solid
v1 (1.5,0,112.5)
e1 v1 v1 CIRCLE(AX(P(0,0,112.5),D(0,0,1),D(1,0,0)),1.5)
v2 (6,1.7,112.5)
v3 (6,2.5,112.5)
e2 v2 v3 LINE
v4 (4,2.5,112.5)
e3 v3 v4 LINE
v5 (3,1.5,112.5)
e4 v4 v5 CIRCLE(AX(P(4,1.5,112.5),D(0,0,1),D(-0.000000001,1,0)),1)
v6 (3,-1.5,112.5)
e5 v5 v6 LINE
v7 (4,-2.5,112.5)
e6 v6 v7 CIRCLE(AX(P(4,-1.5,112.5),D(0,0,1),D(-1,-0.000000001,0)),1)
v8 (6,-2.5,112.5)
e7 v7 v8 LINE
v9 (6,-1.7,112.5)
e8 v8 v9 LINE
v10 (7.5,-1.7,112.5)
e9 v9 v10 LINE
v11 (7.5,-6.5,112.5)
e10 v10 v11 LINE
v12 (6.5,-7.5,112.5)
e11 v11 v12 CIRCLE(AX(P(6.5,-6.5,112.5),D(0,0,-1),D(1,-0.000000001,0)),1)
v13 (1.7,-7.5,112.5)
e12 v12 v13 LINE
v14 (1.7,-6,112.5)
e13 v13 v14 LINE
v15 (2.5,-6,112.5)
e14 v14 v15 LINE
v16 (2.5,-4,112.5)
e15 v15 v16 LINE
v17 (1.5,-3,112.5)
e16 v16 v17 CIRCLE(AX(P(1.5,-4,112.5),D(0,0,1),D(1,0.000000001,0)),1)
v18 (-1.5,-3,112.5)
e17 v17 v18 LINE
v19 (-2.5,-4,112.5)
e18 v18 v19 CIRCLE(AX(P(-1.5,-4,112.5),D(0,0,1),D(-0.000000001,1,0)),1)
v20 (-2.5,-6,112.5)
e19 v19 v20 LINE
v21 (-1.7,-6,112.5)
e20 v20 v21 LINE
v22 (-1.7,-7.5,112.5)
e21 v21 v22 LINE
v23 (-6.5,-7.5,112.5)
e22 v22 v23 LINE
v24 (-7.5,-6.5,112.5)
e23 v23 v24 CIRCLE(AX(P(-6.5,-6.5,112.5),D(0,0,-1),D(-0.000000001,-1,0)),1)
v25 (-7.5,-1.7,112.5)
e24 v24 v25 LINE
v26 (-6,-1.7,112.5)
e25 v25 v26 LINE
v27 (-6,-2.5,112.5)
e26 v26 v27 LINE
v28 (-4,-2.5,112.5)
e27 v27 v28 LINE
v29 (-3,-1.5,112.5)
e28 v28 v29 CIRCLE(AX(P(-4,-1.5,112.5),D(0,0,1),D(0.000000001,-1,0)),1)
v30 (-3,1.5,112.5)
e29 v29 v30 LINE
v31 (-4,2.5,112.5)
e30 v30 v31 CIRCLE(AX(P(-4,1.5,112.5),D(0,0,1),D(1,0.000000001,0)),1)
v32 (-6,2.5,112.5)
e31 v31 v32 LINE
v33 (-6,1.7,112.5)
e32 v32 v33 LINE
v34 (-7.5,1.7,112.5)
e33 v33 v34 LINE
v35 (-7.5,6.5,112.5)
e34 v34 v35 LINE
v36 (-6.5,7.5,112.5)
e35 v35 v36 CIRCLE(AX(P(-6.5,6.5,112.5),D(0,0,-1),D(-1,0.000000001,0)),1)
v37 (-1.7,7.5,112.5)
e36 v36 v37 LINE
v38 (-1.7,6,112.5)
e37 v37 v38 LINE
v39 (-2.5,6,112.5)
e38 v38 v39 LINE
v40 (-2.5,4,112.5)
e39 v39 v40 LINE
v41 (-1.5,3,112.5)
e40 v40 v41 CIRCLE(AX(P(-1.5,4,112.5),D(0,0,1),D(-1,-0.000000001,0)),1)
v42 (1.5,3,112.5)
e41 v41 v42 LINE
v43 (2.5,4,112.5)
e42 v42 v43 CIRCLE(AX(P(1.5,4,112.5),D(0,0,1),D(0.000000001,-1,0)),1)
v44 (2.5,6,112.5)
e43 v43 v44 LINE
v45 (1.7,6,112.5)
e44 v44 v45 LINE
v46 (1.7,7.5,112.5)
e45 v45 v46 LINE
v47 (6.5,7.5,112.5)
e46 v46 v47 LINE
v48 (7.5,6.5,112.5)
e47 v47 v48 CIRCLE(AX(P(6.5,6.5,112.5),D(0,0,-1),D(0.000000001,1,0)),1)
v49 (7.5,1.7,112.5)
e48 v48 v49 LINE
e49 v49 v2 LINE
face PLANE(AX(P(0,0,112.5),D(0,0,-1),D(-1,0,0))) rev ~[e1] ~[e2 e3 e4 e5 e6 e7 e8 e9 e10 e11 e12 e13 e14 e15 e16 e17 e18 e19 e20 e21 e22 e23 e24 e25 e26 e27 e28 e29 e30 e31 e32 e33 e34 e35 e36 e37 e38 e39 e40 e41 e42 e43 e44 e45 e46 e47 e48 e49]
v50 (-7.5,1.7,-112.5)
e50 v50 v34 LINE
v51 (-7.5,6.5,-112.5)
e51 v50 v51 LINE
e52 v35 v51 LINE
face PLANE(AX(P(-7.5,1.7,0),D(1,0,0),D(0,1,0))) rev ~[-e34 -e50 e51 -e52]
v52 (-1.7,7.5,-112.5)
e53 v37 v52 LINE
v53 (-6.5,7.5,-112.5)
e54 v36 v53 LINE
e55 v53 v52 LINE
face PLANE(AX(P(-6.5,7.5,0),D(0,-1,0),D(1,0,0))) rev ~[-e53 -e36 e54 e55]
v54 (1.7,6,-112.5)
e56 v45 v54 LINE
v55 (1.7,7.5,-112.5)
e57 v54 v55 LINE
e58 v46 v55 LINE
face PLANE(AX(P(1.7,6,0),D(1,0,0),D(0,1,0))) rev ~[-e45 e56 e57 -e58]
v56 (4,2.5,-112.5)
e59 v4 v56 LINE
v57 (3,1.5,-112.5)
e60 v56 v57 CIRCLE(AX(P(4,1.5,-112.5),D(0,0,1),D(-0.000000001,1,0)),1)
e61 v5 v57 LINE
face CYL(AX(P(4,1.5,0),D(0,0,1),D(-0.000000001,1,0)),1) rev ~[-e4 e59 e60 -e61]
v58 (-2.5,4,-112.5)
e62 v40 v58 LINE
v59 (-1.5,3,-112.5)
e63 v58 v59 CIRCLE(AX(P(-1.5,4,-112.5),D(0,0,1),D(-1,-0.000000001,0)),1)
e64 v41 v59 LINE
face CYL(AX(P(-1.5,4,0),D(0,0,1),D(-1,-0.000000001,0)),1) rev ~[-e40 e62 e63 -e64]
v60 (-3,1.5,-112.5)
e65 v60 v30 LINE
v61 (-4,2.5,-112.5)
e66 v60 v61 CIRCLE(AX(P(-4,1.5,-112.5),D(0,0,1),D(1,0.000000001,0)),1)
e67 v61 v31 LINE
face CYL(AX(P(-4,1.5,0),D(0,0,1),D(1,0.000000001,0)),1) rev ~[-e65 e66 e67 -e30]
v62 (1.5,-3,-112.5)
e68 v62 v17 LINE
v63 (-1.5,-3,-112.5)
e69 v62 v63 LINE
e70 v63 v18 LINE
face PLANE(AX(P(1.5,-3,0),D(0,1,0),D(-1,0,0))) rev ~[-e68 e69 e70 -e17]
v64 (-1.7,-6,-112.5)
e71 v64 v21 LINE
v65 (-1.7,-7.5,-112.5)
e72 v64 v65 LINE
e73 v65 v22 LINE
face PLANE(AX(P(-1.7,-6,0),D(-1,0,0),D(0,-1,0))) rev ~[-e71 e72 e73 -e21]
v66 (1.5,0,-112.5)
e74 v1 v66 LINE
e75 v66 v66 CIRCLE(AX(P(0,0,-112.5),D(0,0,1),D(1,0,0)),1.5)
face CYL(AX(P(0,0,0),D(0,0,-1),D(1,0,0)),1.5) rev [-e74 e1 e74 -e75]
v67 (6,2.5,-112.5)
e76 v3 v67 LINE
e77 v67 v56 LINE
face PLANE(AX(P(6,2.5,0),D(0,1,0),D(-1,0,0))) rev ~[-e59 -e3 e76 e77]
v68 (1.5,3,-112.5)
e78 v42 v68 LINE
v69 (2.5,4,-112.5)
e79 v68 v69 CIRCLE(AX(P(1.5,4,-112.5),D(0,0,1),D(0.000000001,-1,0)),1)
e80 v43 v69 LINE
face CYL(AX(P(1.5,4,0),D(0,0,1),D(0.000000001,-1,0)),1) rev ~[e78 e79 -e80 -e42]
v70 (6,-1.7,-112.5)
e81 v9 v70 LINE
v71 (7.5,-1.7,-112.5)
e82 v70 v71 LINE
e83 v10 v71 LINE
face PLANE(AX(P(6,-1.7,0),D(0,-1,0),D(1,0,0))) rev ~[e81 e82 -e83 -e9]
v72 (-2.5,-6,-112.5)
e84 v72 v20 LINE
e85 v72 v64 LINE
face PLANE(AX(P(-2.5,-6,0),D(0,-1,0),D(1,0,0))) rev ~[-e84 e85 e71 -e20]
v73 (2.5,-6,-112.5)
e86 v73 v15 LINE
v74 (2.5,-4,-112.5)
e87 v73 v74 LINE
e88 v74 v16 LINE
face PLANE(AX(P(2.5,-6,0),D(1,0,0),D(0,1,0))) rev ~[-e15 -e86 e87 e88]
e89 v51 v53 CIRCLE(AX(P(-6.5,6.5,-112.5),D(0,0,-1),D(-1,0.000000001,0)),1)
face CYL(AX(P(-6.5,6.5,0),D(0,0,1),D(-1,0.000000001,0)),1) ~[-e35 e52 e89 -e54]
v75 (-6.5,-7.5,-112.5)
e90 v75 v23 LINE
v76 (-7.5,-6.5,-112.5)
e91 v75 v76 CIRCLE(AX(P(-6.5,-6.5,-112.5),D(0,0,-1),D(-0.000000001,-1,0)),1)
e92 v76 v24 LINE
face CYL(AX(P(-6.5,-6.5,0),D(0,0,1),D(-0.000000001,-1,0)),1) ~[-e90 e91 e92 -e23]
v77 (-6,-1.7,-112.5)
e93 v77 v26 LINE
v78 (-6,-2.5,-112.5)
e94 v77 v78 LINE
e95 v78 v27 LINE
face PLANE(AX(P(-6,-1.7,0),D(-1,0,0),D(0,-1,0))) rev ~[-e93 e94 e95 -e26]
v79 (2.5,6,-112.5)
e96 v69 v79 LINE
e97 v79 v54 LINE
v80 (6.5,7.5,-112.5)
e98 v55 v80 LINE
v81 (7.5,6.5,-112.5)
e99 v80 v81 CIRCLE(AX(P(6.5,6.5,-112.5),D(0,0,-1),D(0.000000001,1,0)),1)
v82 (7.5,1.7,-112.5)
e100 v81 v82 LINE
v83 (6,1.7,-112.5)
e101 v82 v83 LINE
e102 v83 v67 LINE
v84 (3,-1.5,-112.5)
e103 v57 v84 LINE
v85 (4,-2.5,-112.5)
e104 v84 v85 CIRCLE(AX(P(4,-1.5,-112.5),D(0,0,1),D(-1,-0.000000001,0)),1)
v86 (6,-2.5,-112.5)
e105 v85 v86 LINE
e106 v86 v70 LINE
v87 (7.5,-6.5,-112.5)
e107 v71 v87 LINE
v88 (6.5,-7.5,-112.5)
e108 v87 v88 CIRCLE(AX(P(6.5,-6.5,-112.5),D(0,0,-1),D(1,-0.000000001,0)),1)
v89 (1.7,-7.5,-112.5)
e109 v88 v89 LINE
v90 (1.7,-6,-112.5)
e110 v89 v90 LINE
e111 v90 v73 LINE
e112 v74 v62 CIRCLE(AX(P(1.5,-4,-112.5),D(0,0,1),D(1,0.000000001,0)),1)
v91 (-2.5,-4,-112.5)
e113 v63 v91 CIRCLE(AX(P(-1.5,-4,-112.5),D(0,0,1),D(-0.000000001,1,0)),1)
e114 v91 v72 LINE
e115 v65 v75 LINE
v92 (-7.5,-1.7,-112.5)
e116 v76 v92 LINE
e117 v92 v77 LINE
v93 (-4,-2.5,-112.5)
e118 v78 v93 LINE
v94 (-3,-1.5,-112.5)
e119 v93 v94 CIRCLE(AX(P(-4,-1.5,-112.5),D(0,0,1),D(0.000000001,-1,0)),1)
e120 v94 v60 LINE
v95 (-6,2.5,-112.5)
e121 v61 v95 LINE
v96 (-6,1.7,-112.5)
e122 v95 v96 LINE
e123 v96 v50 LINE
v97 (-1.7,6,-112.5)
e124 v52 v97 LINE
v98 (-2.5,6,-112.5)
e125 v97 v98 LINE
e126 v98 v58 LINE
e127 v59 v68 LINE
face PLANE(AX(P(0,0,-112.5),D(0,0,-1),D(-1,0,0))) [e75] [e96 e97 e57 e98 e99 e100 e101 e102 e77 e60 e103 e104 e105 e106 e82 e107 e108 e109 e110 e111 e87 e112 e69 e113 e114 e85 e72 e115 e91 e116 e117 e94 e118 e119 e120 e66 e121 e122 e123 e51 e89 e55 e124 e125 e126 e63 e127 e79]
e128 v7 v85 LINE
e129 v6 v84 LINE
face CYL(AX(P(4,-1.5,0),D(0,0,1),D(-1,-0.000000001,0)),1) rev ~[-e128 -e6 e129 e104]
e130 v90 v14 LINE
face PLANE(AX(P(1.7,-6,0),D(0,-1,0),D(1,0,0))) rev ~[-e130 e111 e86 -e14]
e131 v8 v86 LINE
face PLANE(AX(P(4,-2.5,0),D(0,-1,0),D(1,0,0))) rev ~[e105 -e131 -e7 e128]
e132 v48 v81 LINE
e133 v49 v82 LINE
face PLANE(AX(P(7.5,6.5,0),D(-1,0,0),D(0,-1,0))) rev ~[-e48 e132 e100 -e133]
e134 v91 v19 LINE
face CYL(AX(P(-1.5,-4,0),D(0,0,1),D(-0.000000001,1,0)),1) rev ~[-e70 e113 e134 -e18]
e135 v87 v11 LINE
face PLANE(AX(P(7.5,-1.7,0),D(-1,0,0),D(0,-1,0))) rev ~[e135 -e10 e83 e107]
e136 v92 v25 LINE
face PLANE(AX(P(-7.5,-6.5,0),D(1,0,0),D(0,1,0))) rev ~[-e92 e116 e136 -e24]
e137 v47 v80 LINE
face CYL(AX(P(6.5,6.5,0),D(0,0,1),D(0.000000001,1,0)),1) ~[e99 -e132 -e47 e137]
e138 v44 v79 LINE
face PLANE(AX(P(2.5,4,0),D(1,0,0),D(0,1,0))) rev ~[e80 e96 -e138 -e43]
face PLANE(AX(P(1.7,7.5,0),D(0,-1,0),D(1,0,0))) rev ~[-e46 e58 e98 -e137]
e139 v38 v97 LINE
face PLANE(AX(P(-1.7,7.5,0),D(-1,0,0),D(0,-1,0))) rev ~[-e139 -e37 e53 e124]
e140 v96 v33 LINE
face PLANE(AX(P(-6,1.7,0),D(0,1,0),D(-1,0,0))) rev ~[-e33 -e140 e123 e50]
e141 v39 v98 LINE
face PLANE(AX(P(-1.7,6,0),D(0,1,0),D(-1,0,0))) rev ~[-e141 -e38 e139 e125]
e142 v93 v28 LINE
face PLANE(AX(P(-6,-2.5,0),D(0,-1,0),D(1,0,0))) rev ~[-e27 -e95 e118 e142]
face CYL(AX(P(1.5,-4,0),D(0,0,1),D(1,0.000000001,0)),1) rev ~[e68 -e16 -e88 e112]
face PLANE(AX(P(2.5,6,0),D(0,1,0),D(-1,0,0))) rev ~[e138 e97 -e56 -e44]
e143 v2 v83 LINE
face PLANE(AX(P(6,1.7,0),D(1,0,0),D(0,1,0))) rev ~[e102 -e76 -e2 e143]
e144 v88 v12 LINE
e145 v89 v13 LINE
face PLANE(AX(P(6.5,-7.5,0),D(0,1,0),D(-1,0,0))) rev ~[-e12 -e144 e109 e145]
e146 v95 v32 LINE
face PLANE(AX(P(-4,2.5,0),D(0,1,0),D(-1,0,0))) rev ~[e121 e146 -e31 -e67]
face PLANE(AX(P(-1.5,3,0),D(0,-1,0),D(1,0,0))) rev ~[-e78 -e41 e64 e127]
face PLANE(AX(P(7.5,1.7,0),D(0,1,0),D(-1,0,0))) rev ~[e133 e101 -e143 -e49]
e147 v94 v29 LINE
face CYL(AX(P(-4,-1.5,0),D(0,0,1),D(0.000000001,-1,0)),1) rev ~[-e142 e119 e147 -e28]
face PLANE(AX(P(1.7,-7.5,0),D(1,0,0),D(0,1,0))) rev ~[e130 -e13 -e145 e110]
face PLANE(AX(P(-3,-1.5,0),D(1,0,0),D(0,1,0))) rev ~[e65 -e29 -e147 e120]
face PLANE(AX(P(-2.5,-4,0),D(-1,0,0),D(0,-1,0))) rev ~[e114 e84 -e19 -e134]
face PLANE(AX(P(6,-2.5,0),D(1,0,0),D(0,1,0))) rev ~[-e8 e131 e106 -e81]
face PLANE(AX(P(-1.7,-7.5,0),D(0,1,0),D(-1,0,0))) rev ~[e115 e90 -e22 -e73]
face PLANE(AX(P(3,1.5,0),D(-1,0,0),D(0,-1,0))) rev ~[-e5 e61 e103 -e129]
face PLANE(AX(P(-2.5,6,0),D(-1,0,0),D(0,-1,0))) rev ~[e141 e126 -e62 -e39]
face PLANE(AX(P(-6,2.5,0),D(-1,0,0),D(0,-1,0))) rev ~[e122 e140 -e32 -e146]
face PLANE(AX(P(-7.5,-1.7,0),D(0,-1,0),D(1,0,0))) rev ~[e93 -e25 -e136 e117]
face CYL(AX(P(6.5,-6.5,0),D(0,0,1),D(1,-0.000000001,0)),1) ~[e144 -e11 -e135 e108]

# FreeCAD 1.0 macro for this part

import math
import FreeCAD as App
import Part
import Sketcher
from FreeCAD import Vector

doc = App.newDocument("Part")
params = doc.addObject("Spreadsheet::Sheet", "Params")
for row, (alias, value) in enumerate([
    ("sketch1_diameter", "3 mm"),
    ("sketch1_radius", "1 mm"),
    ("sketch1_width", "2 mm"),
    ("sketch1_width2", "3 mm"),
    ("sketch1_width3", "1.5 mm"),
    ("pad1_length", "225 mm"),
], start=1):
    params.set(f"A{row}", alias)
    params.set(f"B{row}", "=" + value)
    params.setAlias(f"B{row}", alias)

body = doc.addObject("PartDesign::Body", "Body")

# Sketch on XY plane
sketch1 = body.newObject("Sketcher::SketchObject", "Sketch")
sketch1.AttachmentSupport = (doc.getObject("XY_Plane"), [""])
sketch1.MapMode = "FlatFace"
sketch1.addGeometry([
    Part.LineSegment(Vector(-7.5, 6.5, 0), Vector(-7.5, 1.7, 0)),  # 0
    Part.LineSegment(Vector(-7.5, 1.7, 0), Vector(-6, 1.7, 0)),  # 1
    Part.LineSegment(Vector(-6, 1.7, 0), Vector(-6, 2.5, 0)),  # 2
    Part.LineSegment(Vector(-6, 2.5, 0), Vector(-4, 2.5, 0)),  # 3
    Part.ArcOfCircle(Part.Circle(Vector(-4, 1.5, 0), Vector(0, 0, 1), 1), math.radians(0), math.radians(90)),  # 4
    Part.LineSegment(Vector(-3, 1.5, 0), Vector(-3, -1.5, 0)),  # 5
    Part.ArcOfCircle(Part.Circle(Vector(-4, -1.5, 0), Vector(0, 0, 1), 1), math.radians(-90), math.radians(0)),  # 6
    Part.LineSegment(Vector(-4, -2.5, 0), Vector(-6, -2.5, 0)),  # 7
    Part.LineSegment(Vector(-6, -2.5, 0), Vector(-6, -1.7, 0)),  # 8
    Part.LineSegment(Vector(-6, -1.7, 0), Vector(-7.5, -1.7, 0)),  # 9
    Part.LineSegment(Vector(-7.5, -1.7, 0), Vector(-7.5, -6.5, 0)),  # 10
    Part.ArcOfCircle(Part.Circle(Vector(-6.5, -6.5, 0), Vector(0, 0, 1), 1), math.radians(-180), math.radians(-90)),  # 11
    Part.LineSegment(Vector(-6.5, -7.5, 0), Vector(-1.7, -7.5, 0)),  # 12
    Part.LineSegment(Vector(-1.7, -7.5, 0), Vector(-1.7, -6, 0)),  # 13
    Part.LineSegment(Vector(-1.7, -6, 0), Vector(-2.5, -6, 0)),  # 14
    Part.LineSegment(Vector(-2.5, -6, 0), Vector(-2.5, -4, 0)),  # 15
    Part.ArcOfCircle(Part.Circle(Vector(-1.5, -4, 0), Vector(0, 0, 1), 1), math.radians(90), math.radians(180)),  # 16
    Part.LineSegment(Vector(-1.5, -3, 0), Vector(1.5, -3, 0)),  # 17
    Part.ArcOfCircle(Part.Circle(Vector(1.5, -4, 0), Vector(0, 0, 1), 1), math.radians(0), math.radians(90)),  # 18
    Part.LineSegment(Vector(2.5, -4, 0), Vector(2.5, -6, 0)),  # 19
    Part.LineSegment(Vector(2.5, -6, 0), Vector(1.7, -6, 0)),  # 20
    Part.LineSegment(Vector(1.7, -6, 0), Vector(1.7, -7.5, 0)),  # 21
    Part.LineSegment(Vector(1.7, -7.5, 0), Vector(6.5, -7.5, 0)),  # 22
    Part.ArcOfCircle(Part.Circle(Vector(6.5, -6.5, 0), Vector(0, 0, 1), 1), math.radians(-90), math.radians(0)),  # 23
    Part.LineSegment(Vector(7.5, -6.5, 0), Vector(7.5, -1.7, 0)),  # 24
    Part.LineSegment(Vector(7.5, -1.7, 0), Vector(6, -1.7, 0)),  # 25
    Part.LineSegment(Vector(6, -1.7, 0), Vector(6, -2.5, 0)),  # 26
    Part.LineSegment(Vector(6, -2.5, 0), Vector(4, -2.5, 0)),  # 27
    Part.ArcOfCircle(Part.Circle(Vector(4, -1.5, 0), Vector(0, 0, 1), 1), math.radians(-180), math.radians(-90)),  # 28
    Part.LineSegment(Vector(3, -1.5, 0), Vector(3, 1.5, 0)),  # 29
    Part.ArcOfCircle(Part.Circle(Vector(4, 1.5, 0), Vector(0, 0, 1), 1), math.radians(90), math.radians(180)),  # 30
    Part.LineSegment(Vector(4, 2.5, 0), Vector(6, 2.5, 0)),  # 31
    Part.LineSegment(Vector(6, 2.5, 0), Vector(6, 1.7, 0)),  # 32
    Part.LineSegment(Vector(6, 1.7, 0), Vector(7.5, 1.7, 0)),  # 33
    Part.LineSegment(Vector(7.5, 1.7, 0), Vector(7.5, 6.5, 0)),  # 34
    Part.ArcOfCircle(Part.Circle(Vector(6.5, 6.5, 0), Vector(0, 0, 1), 1), math.radians(0), math.radians(90)),  # 35
    Part.LineSegment(Vector(6.5, 7.5, 0), Vector(1.7, 7.5, 0)),  # 36
    Part.LineSegment(Vector(1.7, 7.5, 0), Vector(1.7, 6, 0)),  # 37
    Part.LineSegment(Vector(1.7, 6, 0), Vector(2.5, 6, 0)),  # 38
    Part.LineSegment(Vector(2.5, 6, 0), Vector(2.5, 4, 0)),  # 39
    Part.ArcOfCircle(Part.Circle(Vector(1.5, 4, 0), Vector(0, 0, 1), 1), math.radians(-90), math.radians(0)),  # 40
    Part.LineSegment(Vector(1.5, 3, 0), Vector(-1.5, 3, 0)),  # 41
    Part.ArcOfCircle(Part.Circle(Vector(-1.5, 4, 0), Vector(0, 0, 1), 1), math.radians(-180), math.radians(-90)),  # 42
    Part.LineSegment(Vector(-2.5, 4, 0), Vector(-2.5, 6, 0)),  # 43
    Part.LineSegment(Vector(-2.5, 6, 0), Vector(-1.7, 6, 0)),  # 44
    Part.LineSegment(Vector(-1.7, 6, 0), Vector(-1.7, 7.5, 0)),  # 45
    Part.LineSegment(Vector(-1.7, 7.5, 0), Vector(-6.5, 7.5, 0)),  # 46
    Part.ArcOfCircle(Part.Circle(Vector(-6.5, 6.5, 0), Vector(0, 0, 1), 1), math.radians(90), math.radians(180)),  # 47
    Part.Circle(Vector(0, 0, 0), Vector(0, 0, 1), 1.5),  # 48
], False)
sketch1.addConstraint([
    Sketcher.Constraint("Coincident", 0, 2, 1, 1),
    Sketcher.Constraint("Coincident", 1, 2, 2, 1),
    Sketcher.Constraint("Coincident", 2, 2, 3, 1),
    Sketcher.Constraint("Tangent", 3, 2, 4, 2),
    Sketcher.Constraint("Tangent", 4, 1, 5, 1),
    Sketcher.Constraint("Tangent", 5, 2, 6, 2),
    Sketcher.Constraint("Tangent", 6, 1, 7, 1),
    Sketcher.Constraint("Coincident", 7, 2, 8, 1),
    Sketcher.Constraint("Coincident", 8, 2, 9, 1),
    Sketcher.Constraint("Coincident", 9, 2, 10, 1),
    Sketcher.Constraint("Tangent", 10, 2, 11, 1),
    Sketcher.Constraint("Tangent", 11, 2, 12, 1),
    Sketcher.Constraint("Coincident", 12, 2, 13, 1),
    Sketcher.Constraint("Coincident", 13, 2, 14, 1),
    Sketcher.Constraint("Coincident", 14, 2, 15, 1),
    Sketcher.Constraint("Tangent", 15, 2, 16, 2),
    Sketcher.Constraint("Tangent", 16, 1, 17, 1),
    Sketcher.Constraint("Tangent", 17, 2, 18, 2),
    Sketcher.Constraint("Tangent", 18, 1, 19, 1),
    Sketcher.Constraint("Coincident", 19, 2, 20, 1),
    Sketcher.Constraint("Coincident", 20, 2, 21, 1),
    Sketcher.Constraint("Coincident", 21, 2, 22, 1),
    Sketcher.Constraint("Tangent", 22, 2, 23, 1),
    Sketcher.Constraint("Tangent", 23, 2, 24, 1),
    Sketcher.Constraint("Coincident", 24, 2, 25, 1),
    Sketcher.Constraint("Coincident", 25, 2, 26, 1),
    Sketcher.Constraint("Coincident", 26, 2, 27, 1),
    Sketcher.Constraint("Tangent", 27, 2, 28, 2),
    Sketcher.Constraint("Tangent", 28, 1, 29, 1),
    Sketcher.Constraint("Tangent", 29, 2, 30, 2),
    Sketcher.Constraint("Tangent", 30, 1, 31, 1),
    Sketcher.Constraint("Coincident", 31, 2, 32, 1),
    Sketcher.Constraint("Coincident", 32, 2, 33, 1),
    Sketcher.Constraint("Coincident", 33, 2, 34, 1),
    Sketcher.Constraint("Tangent", 34, 2, 35, 1),
    Sketcher.Constraint("Tangent", 35, 2, 36, 1),
    Sketcher.Constraint("Coincident", 36, 2, 37, 1),
    Sketcher.Constraint("Coincident", 37, 2, 38, 1),
    Sketcher.Constraint("Coincident", 38, 2, 39, 1),
    Sketcher.Constraint("Tangent", 39, 2, 40, 2),
    Sketcher.Constraint("Tangent", 40, 1, 41, 1),
    Sketcher.Constraint("Tangent", 41, 2, 42, 2),
    Sketcher.Constraint("Tangent", 42, 1, 43, 1),
    Sketcher.Constraint("Coincident", 43, 2, 44, 1),
    Sketcher.Constraint("Coincident", 44, 2, 45, 1),
    Sketcher.Constraint("Coincident", 45, 2, 46, 1),
    Sketcher.Constraint("Tangent", 46, 2, 47, 1),
    Sketcher.Constraint("Tangent", 47, 2, 0, 1),
    Sketcher.Constraint("Vertical", 0),
    Sketcher.Constraint("Horizontal", 1),
    Sketcher.Constraint("Vertical", 2),
    Sketcher.Constraint("Horizontal", 3),
    Sketcher.Constraint("Vertical", 5),
    Sketcher.Constraint("Horizontal", 7),
    Sketcher.Constraint("Vertical", 8),
    Sketcher.Constraint("Horizontal", 9),
    Sketcher.Constraint("Vertical", 10),
    Sketcher.Constraint("Horizontal", 12),
    Sketcher.Constraint("Vertical", 13),
    Sketcher.Constraint("Horizontal", 14),
    Sketcher.Constraint("Vertical", 15),
    Sketcher.Constraint("Horizontal", 17),
    Sketcher.Constraint("Vertical", 19),
    Sketcher.Constraint("Horizontal", 20),
    Sketcher.Constraint("Vertical", 21),
    Sketcher.Constraint("Horizontal", 22),
    Sketcher.Constraint("Vertical", 24),
    Sketcher.Constraint("Horizontal", 25),
    Sketcher.Constraint("Vertical", 26),
    Sketcher.Constraint("Horizontal", 27),
    Sketcher.Constraint("Vertical", 29),
    Sketcher.Constraint("Horizontal", 31),
    Sketcher.Constraint("Vertical", 32),
    Sketcher.Constraint("Horizontal", 33),
    Sketcher.Constraint("Vertical", 34),
    Sketcher.Constraint("Horizontal", 36),
    Sketcher.Constraint("Vertical", 37),
    Sketcher.Constraint("Horizontal", 38),
    Sketcher.Constraint("Vertical", 39),
    Sketcher.Constraint("Horizontal", 41),
    Sketcher.Constraint("Vertical", 43),
    Sketcher.Constraint("Horizontal", 44),
    Sketcher.Constraint("Vertical", 45),
    Sketcher.Constraint("Horizontal", 46),
    Sketcher.Constraint("Coincident", 48, 3, -1, 1),
    Sketcher.Constraint("Equal", 4, 6),
    Sketcher.Constraint("Equal", 6, 11),
    Sketcher.Constraint("Equal", 11, 16),
    Sketcher.Constraint("Equal", 16, 18),
    Sketcher.Constraint("Equal", 18, 23),
    Sketcher.Constraint("Equal", 23, 28),
    Sketcher.Constraint("Equal", 28, 30),
    Sketcher.Constraint("Equal", 30, 35),
    Sketcher.Constraint("Equal", 35, 40),
    Sketcher.Constraint("Equal", 40, 42),
    Sketcher.Constraint("Equal", 42, 47),
    Sketcher.Constraint("Symmetric", 4, 3, 28, 3, -1, 1),
    Sketcher.Constraint("Symmetric", 11, 3, 35, 3, -1, 1),
    Sketcher.Constraint("Symmetric", 16, 3, 40, 3, -1, 1),
    Sketcher.Constraint("Symmetric", 23, 3, 47, 3, -1, 1),
    Sketcher.Constraint("Symmetric", 1, 2, 25, 2, -1, 1),
    Sketcher.Constraint("Symmetric", 7, 2, 31, 2, -1, 1),
    Sketcher.Constraint("Symmetric", 13, 2, 37, 2, -1, 1),
    Sketcher.Constraint("Symmetric", 19, 2, 43, 2, -1, 1),
    Sketcher.Constraint("Symmetric", 11, 3, 23, 3, -2),
    Sketcher.Constraint("Symmetric", 14, 2, 19, 2, -2),
    Sketcher.Constraint("Symmetric", 8, 2, 25, 2, -2),
    Sketcher.Constraint("Horizontal", 6, 3, 28, 3),
    Sketcher.Constraint("Horizontal", 1, 2, 32, 2),
    Sketcher.Constraint("Vertical", 21, 2, 36, 2),
    Sketcher.Constraint("Vertical", 13, 2, 44, 2),
    Sketcher.Constraint("Equal", 46, 0),
    Sketcher.Constraint("Equal", 44, 2),
    Sketcher.Constraint("Equal", 41, 5),
    Sketcher.Constraint("Equal", 33, 13),
    Sketcher.Constraint("Equal", 31, 15),
    Sketcher.Constraint("Diameter", 48, 3.0),
    Sketcher.Constraint("Radius", 4, 1.0),
    Sketcher.Constraint("DistanceX", 3, 1, 3, 2, 2.0),
    Sketcher.Constraint("DistanceX", 17, 1, 17, 2, 3.0),
    Sketcher.Constraint("DistanceX", 1, 1, 1, 2, 1.5),
    Sketcher.Constraint("DistanceX", 12, 1, 12, 2, 4.8),
    Sketcher.Constraint("DistanceX", 14, 2, 14, 1, 0.8),
])
sketch1.setExpression("Constraints[116]", "Params.sketch1_diameter")
sketch1.setExpression("Constraints[117]", "Params.sketch1_radius")
sketch1.setExpression("Constraints[118]", "Params.sketch1_width")
sketch1.setExpression("Constraints[119]", "Params.sketch1_width2")
sketch1.setExpression("Constraints[120]", "Params.sketch1_width3")
pad1 = body.newObject("PartDesign::Pad", "Pad")
pad1.Profile = sketch1
pad1.setExpression("Length", "Params.pad1_length")
pad1.Midplane = True

doc.recompute()
